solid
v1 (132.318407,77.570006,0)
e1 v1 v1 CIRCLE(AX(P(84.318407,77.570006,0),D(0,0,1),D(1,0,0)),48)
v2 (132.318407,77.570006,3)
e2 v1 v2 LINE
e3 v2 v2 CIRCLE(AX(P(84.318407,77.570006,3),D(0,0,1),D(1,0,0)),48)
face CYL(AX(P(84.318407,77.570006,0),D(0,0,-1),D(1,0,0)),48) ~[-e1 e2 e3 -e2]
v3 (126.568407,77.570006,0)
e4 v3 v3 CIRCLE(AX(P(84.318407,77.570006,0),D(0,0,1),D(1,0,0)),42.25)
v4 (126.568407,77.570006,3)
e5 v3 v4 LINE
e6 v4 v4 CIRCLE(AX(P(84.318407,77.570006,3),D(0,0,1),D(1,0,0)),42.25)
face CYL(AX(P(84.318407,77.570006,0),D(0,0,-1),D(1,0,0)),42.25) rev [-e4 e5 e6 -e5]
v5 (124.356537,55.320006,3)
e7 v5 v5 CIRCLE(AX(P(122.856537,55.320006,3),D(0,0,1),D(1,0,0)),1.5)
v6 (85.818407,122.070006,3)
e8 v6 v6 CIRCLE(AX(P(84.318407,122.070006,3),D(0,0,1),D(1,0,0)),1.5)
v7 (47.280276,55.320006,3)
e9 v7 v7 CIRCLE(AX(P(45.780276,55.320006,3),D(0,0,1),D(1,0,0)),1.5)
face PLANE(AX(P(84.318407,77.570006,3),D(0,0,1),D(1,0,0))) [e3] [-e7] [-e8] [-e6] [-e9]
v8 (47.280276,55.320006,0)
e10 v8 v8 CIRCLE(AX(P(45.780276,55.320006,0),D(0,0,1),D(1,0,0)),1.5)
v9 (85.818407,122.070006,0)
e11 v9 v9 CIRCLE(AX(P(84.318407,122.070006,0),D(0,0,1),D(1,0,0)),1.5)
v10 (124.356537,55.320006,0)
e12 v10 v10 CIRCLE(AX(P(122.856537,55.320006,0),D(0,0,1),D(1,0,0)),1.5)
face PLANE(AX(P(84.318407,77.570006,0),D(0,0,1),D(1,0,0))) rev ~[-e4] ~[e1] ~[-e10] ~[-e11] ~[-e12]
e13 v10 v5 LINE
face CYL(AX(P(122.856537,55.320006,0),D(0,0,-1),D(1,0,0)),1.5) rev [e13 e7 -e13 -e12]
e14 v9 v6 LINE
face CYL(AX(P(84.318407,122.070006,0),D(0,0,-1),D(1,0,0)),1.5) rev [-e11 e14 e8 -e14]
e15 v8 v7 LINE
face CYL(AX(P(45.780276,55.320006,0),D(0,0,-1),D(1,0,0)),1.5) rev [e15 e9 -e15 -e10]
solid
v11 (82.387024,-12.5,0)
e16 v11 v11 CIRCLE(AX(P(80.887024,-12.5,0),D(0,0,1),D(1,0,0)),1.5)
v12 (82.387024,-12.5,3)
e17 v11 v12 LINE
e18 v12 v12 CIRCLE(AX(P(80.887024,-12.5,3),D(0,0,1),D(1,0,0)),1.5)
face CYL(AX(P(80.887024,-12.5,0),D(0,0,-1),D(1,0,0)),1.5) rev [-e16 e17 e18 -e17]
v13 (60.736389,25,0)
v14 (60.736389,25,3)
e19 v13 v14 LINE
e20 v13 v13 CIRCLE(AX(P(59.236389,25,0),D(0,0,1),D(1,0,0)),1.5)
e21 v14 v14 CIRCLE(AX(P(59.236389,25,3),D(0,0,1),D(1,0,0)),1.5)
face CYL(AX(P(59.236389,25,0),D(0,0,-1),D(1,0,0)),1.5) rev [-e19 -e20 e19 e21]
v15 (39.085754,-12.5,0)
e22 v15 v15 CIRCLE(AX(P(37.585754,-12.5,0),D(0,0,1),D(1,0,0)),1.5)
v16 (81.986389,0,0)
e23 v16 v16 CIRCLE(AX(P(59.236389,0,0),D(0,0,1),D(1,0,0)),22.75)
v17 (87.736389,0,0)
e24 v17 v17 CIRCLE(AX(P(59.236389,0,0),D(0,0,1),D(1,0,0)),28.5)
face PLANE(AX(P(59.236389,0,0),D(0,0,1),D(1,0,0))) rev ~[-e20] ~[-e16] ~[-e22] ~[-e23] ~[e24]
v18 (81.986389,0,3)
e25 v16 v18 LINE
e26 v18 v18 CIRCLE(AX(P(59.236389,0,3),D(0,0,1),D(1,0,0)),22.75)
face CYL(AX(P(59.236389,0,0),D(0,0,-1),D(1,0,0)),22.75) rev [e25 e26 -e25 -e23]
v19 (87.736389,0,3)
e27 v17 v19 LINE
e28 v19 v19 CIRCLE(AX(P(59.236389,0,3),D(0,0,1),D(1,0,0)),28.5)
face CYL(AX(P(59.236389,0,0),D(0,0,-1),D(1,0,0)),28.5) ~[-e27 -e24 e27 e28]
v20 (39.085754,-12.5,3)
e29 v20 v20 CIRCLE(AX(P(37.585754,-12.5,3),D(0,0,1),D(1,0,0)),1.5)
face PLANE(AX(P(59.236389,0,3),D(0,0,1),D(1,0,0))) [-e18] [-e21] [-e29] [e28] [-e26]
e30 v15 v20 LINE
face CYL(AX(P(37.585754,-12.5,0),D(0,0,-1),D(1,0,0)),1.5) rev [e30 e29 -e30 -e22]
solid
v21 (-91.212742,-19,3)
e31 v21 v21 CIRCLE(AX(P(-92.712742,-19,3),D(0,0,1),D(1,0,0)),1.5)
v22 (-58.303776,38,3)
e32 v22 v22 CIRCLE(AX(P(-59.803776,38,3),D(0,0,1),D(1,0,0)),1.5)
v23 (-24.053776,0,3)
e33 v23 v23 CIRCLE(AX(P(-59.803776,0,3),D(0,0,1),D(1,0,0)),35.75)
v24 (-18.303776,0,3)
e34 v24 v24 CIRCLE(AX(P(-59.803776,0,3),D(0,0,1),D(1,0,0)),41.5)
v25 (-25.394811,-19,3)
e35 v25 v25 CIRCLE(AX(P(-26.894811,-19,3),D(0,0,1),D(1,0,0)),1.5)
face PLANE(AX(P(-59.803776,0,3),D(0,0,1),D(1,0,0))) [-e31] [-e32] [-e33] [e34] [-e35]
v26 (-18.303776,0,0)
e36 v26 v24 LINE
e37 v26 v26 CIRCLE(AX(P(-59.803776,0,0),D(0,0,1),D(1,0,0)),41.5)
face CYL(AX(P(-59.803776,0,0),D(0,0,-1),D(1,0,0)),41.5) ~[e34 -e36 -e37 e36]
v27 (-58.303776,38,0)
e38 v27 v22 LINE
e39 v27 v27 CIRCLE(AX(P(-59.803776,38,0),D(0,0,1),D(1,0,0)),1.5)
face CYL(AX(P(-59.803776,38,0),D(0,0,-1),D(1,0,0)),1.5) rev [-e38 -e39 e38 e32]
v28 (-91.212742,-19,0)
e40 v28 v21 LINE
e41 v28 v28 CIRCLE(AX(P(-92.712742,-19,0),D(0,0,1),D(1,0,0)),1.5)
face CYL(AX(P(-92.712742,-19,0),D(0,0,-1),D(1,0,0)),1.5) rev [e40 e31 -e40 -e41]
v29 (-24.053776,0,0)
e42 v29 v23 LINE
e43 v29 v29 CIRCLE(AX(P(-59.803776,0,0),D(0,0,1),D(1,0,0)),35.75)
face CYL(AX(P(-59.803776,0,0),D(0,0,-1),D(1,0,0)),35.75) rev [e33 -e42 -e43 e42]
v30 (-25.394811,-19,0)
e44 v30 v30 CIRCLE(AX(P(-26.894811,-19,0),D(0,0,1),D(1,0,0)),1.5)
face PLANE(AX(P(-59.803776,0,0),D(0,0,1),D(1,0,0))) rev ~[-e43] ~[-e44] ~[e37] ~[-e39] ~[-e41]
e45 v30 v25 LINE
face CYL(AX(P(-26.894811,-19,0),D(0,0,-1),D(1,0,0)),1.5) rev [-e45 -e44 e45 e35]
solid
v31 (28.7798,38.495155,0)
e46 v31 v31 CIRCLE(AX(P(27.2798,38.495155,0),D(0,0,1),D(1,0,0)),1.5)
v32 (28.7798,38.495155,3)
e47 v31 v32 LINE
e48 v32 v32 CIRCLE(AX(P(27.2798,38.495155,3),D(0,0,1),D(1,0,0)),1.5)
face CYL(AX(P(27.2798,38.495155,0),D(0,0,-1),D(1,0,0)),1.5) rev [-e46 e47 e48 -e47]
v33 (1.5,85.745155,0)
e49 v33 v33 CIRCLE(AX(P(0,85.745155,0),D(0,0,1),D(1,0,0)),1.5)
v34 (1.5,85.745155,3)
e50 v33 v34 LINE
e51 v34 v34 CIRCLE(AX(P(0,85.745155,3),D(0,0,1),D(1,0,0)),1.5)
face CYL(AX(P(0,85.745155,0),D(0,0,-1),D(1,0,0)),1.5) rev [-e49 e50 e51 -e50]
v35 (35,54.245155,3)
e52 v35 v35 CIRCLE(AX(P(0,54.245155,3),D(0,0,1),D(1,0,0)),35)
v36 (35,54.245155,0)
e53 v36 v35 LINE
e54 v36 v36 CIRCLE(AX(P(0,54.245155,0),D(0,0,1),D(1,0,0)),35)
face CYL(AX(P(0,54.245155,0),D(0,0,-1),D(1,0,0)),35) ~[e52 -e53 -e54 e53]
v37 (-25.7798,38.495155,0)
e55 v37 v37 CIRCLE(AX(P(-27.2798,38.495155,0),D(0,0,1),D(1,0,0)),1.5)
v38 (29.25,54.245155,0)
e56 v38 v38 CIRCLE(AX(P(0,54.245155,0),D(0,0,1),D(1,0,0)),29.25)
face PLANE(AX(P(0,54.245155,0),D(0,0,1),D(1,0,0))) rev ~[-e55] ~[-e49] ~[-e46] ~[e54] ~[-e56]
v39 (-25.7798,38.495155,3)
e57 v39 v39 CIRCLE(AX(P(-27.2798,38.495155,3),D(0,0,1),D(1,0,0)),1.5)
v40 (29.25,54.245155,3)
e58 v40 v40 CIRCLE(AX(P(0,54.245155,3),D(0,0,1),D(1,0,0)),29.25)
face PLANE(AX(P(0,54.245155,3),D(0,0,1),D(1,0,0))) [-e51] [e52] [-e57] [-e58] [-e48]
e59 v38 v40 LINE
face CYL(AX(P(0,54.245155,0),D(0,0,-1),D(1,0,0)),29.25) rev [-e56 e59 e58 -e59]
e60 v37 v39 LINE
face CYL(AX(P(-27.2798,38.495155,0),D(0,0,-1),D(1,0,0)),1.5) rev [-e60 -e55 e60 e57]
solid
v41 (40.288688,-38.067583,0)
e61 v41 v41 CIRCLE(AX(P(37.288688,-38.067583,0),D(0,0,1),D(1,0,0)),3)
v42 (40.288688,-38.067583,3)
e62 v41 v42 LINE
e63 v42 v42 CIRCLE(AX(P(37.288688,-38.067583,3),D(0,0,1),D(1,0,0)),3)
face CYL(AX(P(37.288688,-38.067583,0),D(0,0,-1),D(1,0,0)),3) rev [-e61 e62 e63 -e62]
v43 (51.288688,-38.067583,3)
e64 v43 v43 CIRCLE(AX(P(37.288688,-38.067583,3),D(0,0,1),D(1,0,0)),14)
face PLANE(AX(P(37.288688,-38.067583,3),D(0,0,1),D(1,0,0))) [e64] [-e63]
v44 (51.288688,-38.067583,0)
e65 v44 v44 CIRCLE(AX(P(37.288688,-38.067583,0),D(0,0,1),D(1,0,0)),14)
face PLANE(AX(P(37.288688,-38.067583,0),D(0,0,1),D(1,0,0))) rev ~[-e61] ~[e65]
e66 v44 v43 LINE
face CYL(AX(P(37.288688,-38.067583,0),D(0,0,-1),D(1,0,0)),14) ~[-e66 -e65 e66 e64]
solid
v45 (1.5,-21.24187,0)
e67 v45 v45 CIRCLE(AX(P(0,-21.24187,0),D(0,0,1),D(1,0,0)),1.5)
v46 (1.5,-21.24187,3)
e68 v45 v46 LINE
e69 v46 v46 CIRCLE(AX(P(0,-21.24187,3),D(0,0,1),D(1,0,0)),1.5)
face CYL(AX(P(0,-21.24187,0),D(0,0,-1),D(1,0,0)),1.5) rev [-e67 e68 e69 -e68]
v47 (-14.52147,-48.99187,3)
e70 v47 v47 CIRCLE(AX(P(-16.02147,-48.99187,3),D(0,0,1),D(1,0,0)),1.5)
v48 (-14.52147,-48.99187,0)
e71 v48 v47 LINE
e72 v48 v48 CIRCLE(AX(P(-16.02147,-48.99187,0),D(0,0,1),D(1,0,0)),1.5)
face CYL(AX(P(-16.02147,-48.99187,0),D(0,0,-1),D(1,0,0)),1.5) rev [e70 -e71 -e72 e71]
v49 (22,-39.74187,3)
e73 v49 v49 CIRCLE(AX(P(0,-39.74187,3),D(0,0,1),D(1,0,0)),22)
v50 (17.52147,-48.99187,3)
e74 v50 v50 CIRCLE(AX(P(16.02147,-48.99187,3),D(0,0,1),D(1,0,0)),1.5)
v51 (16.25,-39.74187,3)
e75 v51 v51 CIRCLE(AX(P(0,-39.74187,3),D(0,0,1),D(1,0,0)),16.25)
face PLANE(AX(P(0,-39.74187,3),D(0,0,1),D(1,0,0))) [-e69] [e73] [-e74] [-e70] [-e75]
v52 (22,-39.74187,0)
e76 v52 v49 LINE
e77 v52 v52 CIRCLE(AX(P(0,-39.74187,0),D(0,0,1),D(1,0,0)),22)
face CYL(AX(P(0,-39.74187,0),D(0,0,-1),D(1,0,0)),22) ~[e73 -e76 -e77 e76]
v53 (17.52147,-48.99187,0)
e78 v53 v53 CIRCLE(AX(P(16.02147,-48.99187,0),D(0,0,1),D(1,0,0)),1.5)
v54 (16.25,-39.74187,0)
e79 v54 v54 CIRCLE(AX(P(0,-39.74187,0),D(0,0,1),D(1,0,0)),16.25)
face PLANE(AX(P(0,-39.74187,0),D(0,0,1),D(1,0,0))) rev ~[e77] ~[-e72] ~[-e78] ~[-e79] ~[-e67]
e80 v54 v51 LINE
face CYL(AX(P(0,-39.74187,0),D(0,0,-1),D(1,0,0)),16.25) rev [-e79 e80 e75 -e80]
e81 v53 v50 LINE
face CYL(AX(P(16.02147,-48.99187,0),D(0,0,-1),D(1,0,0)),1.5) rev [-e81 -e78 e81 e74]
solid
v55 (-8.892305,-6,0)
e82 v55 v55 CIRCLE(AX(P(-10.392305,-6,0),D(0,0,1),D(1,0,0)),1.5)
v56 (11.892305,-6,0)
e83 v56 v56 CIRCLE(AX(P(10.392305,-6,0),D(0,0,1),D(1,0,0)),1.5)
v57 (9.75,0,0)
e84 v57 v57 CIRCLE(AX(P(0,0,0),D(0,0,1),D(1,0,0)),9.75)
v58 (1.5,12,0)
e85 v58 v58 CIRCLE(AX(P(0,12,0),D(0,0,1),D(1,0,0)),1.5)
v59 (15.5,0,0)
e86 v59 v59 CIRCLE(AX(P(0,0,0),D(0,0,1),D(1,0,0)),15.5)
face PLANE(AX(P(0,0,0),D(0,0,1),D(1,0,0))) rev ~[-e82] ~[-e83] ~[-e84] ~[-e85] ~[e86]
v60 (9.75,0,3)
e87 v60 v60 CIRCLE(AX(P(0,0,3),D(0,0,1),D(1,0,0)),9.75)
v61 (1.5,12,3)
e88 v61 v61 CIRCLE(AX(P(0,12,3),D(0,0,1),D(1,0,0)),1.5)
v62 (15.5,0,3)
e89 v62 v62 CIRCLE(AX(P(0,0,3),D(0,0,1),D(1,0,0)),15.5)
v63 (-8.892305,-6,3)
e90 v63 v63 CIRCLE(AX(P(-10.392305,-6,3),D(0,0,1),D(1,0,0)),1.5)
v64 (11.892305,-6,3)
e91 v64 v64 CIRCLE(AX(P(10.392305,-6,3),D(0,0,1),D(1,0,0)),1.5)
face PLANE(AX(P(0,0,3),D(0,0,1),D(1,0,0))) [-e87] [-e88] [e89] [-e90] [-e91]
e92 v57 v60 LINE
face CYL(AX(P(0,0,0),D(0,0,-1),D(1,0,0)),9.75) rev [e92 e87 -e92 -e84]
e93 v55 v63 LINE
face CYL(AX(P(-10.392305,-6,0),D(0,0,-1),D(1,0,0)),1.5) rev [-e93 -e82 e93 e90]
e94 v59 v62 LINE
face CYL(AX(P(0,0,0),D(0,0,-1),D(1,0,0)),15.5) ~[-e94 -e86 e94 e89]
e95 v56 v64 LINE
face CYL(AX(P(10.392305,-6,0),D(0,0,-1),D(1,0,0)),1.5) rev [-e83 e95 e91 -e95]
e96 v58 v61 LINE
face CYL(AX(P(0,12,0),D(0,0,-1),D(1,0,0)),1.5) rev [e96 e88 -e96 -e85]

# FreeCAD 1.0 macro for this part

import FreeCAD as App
import Part
import Sketcher
from FreeCAD import Vector
Q = App.Units.Quantity

doc = App.newDocument("Part")
body = doc.addObject("PartDesign::Body", "Body")
body.AllowCompound = True

sketch1 = doc.addObject("Sketcher::SketchObject", "Sketch")
body.addObject(sketch1)
sketch1.AttachmentSupport = (doc.XY_Plane, [""])
sketch1.MapMode = "FlatFace"
sketch1.addGeometry([
    Part.Circle(Vector(37.288688, -38.067583, 0), Vector(0, 0, 1), 14),
    Part.Circle(Vector(37.288688, -38.067583, 0), Vector(0, 0, 1), 3),
    Part.Circle(Vector(0, -39.74187, 0), Vector(0, 0, 1), 22),
    Part.Circle(Vector(-16.02147, -48.99187, 0), Vector(0, 0, 1), 1.5),
    Part.Circle(Vector(16.02147, -48.99187, 0), Vector(0, 0, 1), 1.5),
    Part.Circle(Vector(0, -39.74187, 0), Vector(0, 0, 1), 16.25),
    Part.Circle(Vector(0, -21.24187, 0), Vector(0, 0, 1), 1.5),
    Part.Circle(Vector(-59.803776, 0, 0), Vector(0, 0, 1), 41.5),
    Part.Circle(Vector(-92.712742, -19, 0), Vector(0, 0, 1), 1.5),
    Part.Circle(Vector(-26.894811, -19, 0), Vector(0, 0, 1), 1.5),
    Part.Circle(Vector(-59.803776, 0, 0), Vector(0, 0, 1), 35.75),
    Part.Circle(Vector(-59.803776, 38, 0), Vector(0, 0, 1), 1.5),
    Part.Circle(Vector(0, 0, 0), Vector(0, 0, 1), 15.5),
    Part.Circle(Vector(-10.392305, -6, 0), Vector(0, 0, 1), 1.5),
    Part.Circle(Vector(10.392305, -6, 0), Vector(0, 0, 1), 1.5),
    Part.Circle(Vector(0, 0, 0), Vector(0, 0, 1), 9.75),
    Part.Circle(Vector(0, 12, 0), Vector(0, 0, 1), 1.5),
    Part.Circle(Vector(59.236389, 0, 0), Vector(0, 0, 1), 28.5),
    Part.Circle(Vector(37.585754, -12.5, 0), Vector(0, 0, 1), 1.5),
    Part.Circle(Vector(80.887024, -12.5, 0), Vector(0, 0, 1), 1.5),
    Part.Circle(Vector(59.236389, 0, 0), Vector(0, 0, 1), 22.75),
    Part.Circle(Vector(59.236389, 25, 0), Vector(0, 0, 1), 1.5),
    Part.Circle(Vector(0, 54.245155, 0), Vector(0, 0, 1), 35),
    Part.Circle(Vector(-27.2798, 38.495155, 0), Vector(0, 0, 1), 1.5),
    Part.Circle(Vector(27.2798, 38.495155, 0), Vector(0, 0, 1), 1.5),
    Part.Circle(Vector(0, 54.245155, 0), Vector(0, 0, 1), 29.25),
    Part.Circle(Vector(0, 85.745155, 0), Vector(0, 0, 1), 1.5),
    Part.Circle(Vector(84.318407, 77.570006, 0), Vector(0, 0, 1), 48),
    Part.Circle(Vector(45.780276, 55.320006, 0), Vector(0, 0, 1), 1.5),
    Part.Circle(Vector(122.856537, 55.320006, 0), Vector(0, 0, 1), 1.5),
    Part.Circle(Vector(84.318407, 77.570006, 0), Vector(0, 0, 1), 42.25),
    Part.Circle(Vector(84.318407, 122.070006, 0), Vector(0, 0, 1), 1.5),
], False)
sketch1.addConstraint([
    Sketcher.Constraint("Coincident", 12, 3, -1, 1),
    Sketcher.Constraint("Coincident", 15, 3, -1, 1),
    Sketcher.Constraint("Coincident", 1, 3, 0, 3),
    Sketcher.Constraint("Coincident", 5, 3, 2, 3),
    Sketcher.Constraint("Coincident", 10, 3, 7, 3),
    Sketcher.Constraint("Coincident", 20, 3, 17, 3),
    Sketcher.Constraint("Coincident", 25, 3, 22, 3),
    Sketcher.Constraint("Coincident", 30, 3, 27, 3),
    Sketcher.Constraint("Equal", 3, 4),
    Sketcher.Constraint("Equal", 4, 6),
    Sketcher.Constraint("Equal", 6, 8),
    Sketcher.Constraint("Equal", 8, 9),
    Sketcher.Constraint("Equal", 9, 11),
    Sketcher.Constraint("Equal", 11, 13),
    Sketcher.Constraint("Equal", 13, 14),
    Sketcher.Constraint("Equal", 14, 16),
    Sketcher.Constraint("Equal", 16, 18),
    Sketcher.Constraint("Equal", 18, 19),
    Sketcher.Constraint("Equal", 19, 21),
    Sketcher.Constraint("Equal", 21, 23),
    Sketcher.Constraint("Equal", 23, 24),
    Sketcher.Constraint("Equal", 24, 26),
    Sketcher.Constraint("Equal", 26, 28),
    Sketcher.Constraint("Equal", 28, 29),
    Sketcher.Constraint("Equal", 29, 31),
    Sketcher.Constraint("Symmetric", 3, 3, 4, 3, -2),
    Sketcher.Constraint("Symmetric", 13, 3, 14, 3, -2),
    Sketcher.Constraint("Symmetric", 23, 3, 24, 3, -2),
    Sketcher.Constraint("PointOnObject", 2, 3, -2),
    Sketcher.Constraint("PointOnObject", 6, 3, -2),
    Sketcher.Constraint("PointOnObject", 7, 3, -1),
    Sketcher.Constraint("PointOnObject", 16, 3, -2),
    Sketcher.Constraint("PointOnObject", 17, 3, -1),
    Sketcher.Constraint("PointOnObject", 22, 3, -2),
    Sketcher.Constraint("PointOnObject", 26, 3, -2),
    Sketcher.Constraint("Horizontal", 8, 3, 9, 3),
    Sketcher.Constraint("Horizontal", 18, 3, 19, 3),
    Sketcher.Constraint("Horizontal", 28, 3, 29, 3),
    Sketcher.Constraint("Vertical", 10, 3, 11, 3),
    Sketcher.Constraint("Vertical", 20, 3, 21, 3),
    Sketcher.Constraint("Vertical", 30, 3, 31, 3),
    Sketcher.Constraint("Diameter", 0, Q("28 mm")),
    Sketcher.Constraint("Diameter", 1, Q("6 mm")),
    Sketcher.Constraint("Diameter", 2, Q("44 mm")),
    Sketcher.Constraint("Diameter", 3, Q("3 mm")),
    Sketcher.Constraint("Diameter", 7, Q("83 mm")),
    Sketcher.Constraint("Diameter", 12, Q("31 mm")),
    Sketcher.Constraint("Diameter", 17, Q("57 mm")),
    Sketcher.Constraint("Diameter", 22, Q("70 mm")),
    Sketcher.Constraint("Diameter", 27, Q("96 mm")),
    Sketcher.Constraint("Diameter", 5, Q("32.5 mm")),
    Sketcher.Constraint("Diameter", 10, Q("71.5 mm")),
    Sketcher.Constraint("Diameter", 15, Q("19.5 mm")),
    Sketcher.Constraint("Diameter", 20, Q("45.5 mm")),
    Sketcher.Constraint("Diameter", 25, Q("58.5 mm")),
    Sketcher.Constraint("Diameter", 30, Q("84.5 mm")),
    Sketcher.Constraint("DistanceY", 8, 3, -1, 1, Q("19 mm")),
    Sketcher.Constraint("DistanceY", -1, 1, 11, 3, Q("38 mm")),
    Sketcher.Constraint("DistanceY", 13, 3, -1, 1, Q("6 mm")),
    Sketcher.Constraint("DistanceY", -1, 1, 16, 3, Q("12 mm")),
    Sketcher.Constraint("DistanceY", -1, 1, 21, 3, Q("25 mm")),
    Sketcher.Constraint("DistanceY", 18, 3, -1, 1, Q("12.5 mm")),
    Sketcher.Constraint("DistanceY", 2, 3, 6, 3, Q("18.5 mm")),
    Sketcher.Constraint("DistanceY", 22, 3, 26, 3, Q("31.5 mm")),
    Sketcher.Constraint("DistanceY", 27, 3, 31, 3, Q("44.5 mm")),
    Sketcher.Constraint("DistanceY", 3, 3, 2, 3, Q("9.25 mm")),
    Sketcher.Constraint("DistanceY", 23, 3, 22, 3, Q("15.75 mm")),
    Sketcher.Constraint("DistanceY", 28, 3, 27, 3, Q("22.25 mm")),
    Sketcher.Constraint("DistanceX", 23, 3, -1, 1, Q("27.2798 mm")),
    Sketcher.Constraint("DistanceX", 0, 3, 17, 3, Q("21.947701 mm")),
    Sketcher.Constraint("DistanceY", 2, 3, -1, 1, Q("39.74187 mm")),
    Sketcher.Constraint("DistanceX", 3, 3, -1, 1, Q("16.02147 mm")),
    Sketcher.Constraint("DistanceX", 9, 3, -1, 1, Q("26.894811 mm")),
    Sketcher.Constraint("DistanceX", -1, 1, 17, 3, Q("59.236389 mm")),
    Sketcher.Constraint("DistanceX", 8, 3, 3, 3, Q("76.691272 mm")),
    Sketcher.Constraint("DistanceX", 13, 3, 14, 3, Q("20.78461 mm")),
    Sketcher.Constraint("DistanceX", 14, 3, 18, 3, Q("27.193449 mm")),
    Sketcher.Constraint("DistanceX", 18, 3, 19, 3, Q("43.30127 mm")),
    Sketcher.Constraint("DistanceY", 24, 3, 27, 3, Q("39.074851 mm")),
    Sketcher.Constraint("DistanceX", 28, 3, 27, 3, Q("38.538131 mm")),
    Sketcher.Constraint("DistanceX", 27, 3, 29, 3, Q("38.53813 mm")),
    Sketcher.Constraint("DistanceY", 0, 3, -1, 1, Q("38.067583 mm")),
    Sketcher.Constraint("DistanceX", 7, 3, -1, 1, Q("59.803776 mm")),
    Sketcher.Constraint("DistanceY", -1, 1, 22, 3, Q("54.245155 mm")),
    Sketcher.Constraint("DistanceX", -1, 1, 27, 3, Q("84.318407 mm")),
])
pad1 = doc.addObject("PartDesign::Pad", "Pad")
body.addObject(pad1)
pad1.Profile = sketch1
pad1.Length = 3

doc.recompute()
